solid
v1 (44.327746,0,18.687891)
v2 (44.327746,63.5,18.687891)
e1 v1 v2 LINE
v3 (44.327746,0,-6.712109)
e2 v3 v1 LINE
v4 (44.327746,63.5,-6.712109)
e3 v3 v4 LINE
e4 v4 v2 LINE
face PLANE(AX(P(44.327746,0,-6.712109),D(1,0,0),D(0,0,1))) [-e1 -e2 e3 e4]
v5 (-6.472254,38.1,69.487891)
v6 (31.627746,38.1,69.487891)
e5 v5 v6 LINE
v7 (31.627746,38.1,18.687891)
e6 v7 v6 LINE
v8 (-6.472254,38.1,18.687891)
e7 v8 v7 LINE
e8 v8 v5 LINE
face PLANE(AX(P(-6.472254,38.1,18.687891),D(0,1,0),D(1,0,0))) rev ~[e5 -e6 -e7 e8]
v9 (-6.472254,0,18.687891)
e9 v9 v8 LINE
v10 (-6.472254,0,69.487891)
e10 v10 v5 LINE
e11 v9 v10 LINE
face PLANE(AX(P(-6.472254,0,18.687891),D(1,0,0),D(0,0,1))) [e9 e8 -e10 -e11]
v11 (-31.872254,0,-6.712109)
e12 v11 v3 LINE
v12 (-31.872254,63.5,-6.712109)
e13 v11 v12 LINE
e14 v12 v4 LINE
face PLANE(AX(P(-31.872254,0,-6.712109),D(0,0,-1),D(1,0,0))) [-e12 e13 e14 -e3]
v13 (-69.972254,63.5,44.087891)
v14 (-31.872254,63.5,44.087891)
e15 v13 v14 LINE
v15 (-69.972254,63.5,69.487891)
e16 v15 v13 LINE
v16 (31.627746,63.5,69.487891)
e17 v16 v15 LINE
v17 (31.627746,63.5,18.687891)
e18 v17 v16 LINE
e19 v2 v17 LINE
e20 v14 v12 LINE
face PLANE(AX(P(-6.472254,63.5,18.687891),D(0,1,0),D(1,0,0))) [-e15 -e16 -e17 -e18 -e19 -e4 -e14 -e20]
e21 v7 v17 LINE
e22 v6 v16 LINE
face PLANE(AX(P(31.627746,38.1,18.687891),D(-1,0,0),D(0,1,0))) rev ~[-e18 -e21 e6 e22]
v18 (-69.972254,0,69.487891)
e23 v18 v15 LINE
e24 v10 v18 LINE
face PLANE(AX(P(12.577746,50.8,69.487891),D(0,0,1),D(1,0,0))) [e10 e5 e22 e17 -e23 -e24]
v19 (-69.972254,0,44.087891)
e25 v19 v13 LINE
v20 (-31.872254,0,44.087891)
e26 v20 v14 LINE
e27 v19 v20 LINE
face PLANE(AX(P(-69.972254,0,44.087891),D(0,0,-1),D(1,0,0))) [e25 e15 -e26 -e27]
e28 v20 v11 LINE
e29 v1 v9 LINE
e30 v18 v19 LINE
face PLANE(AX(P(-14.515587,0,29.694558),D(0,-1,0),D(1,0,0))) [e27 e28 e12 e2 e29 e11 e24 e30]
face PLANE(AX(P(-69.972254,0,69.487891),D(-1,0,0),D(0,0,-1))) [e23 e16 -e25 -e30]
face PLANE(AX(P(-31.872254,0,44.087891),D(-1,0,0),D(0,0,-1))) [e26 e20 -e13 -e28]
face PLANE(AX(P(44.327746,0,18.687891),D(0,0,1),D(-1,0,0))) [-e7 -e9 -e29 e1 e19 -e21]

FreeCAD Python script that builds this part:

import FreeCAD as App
import Part
import Sketcher
from FreeCAD import Vector
Q = App.Units.Quantity

doc = App.newDocument("Part")
body = doc.addObject("PartDesign::Body", "Body")

sketch1 = body.newObject("Sketcher::SketchObject", "Sketch")
sketch1.AttachmentSupport = (doc.getObject("XZ_Plane"), [""])
sketch1.MapMode = "FlatFace"
sketch1.addGeometry(Part.LineSegment(Vector(-32, 44, 0), Vector(-32, -7, 0)), False)
sketch1.addGeometry(Part.LineSegment(Vector(-32, -7, 0), Vector(44, -7, 0)), False)
sketch1.addGeometry(Part.LineSegment(Vector(44, -7, 0), Vector(44, 19, 0)), False)
sketch1.addGeometry(Part.LineSegment(Vector(44, 19, 0), Vector(-6, 19, 0)), False)
sketch1.addGeometry(Part.LineSegment(Vector(-6, 19, 0), Vector(-6, 69, 0)), False)
sketch1.addGeometry(Part.LineSegment(Vector(-6, 69, 0), Vector(-70, 69, 0)), False)
sketch1.addGeometry(Part.LineSegment(Vector(-70, 69, 0), Vector(-70, 44, 0)), False)
sketch1.addGeometry(Part.LineSegment(Vector(-70, 44, 0), Vector(-32, 44, 0)), False)
sketch1.addConstraint(Sketcher.Constraint("Coincident", 0, 2, 1, 1))
sketch1.addConstraint(Sketcher.Constraint("Coincident", 1, 2, 2, 1))
sketch1.addConstraint(Sketcher.Constraint("Coincident", 2, 2, 3, 1))
sketch1.addConstraint(Sketcher.Constraint("Coincident", 3, 2, 4, 1))
sketch1.addConstraint(Sketcher.Constraint("Coincident", 4, 2, 5, 1))
sketch1.addConstraint(Sketcher.Constraint("Coincident", 5, 2, 6, 1))
sketch1.addConstraint(Sketcher.Constraint("Coincident", 6, 2, 7, 1))
sketch1.addConstraint(Sketcher.Constraint("Coincident", 7, 2, 0, 1))
sketch1.addConstraint(Sketcher.Constraint("Vertical", 0))
sketch1.addConstraint(Sketcher.Constraint("Horizontal", 1))
sketch1.addConstraint(Sketcher.Constraint("Vertical", 2))
sketch1.addConstraint(Sketcher.Constraint("Horizontal", 3))
sketch1.addConstraint(Sketcher.Constraint("Vertical", 4))
sketch1.addConstraint(Sketcher.Constraint("Horizontal", 5))
sketch1.addConstraint(Sketcher.Constraint("Vertical", 6))
sketch1.addConstraint(Sketcher.Constraint("Horizontal", 7))
sketch1.addConstraint(Sketcher.Constraint("Equal", 3, 0))
sketch1.addConstraint(Sketcher.Constraint("Equal", 0, 4))
sketch1.addConstraint(Sketcher.Constraint("DistanceX", 1, 1, 1, 2, Q("3 in")))
sketch1.addConstraint(Sketcher.Constraint("DistanceX", 3, 2, 3, 1, Q("2 in")))
sketch1.addConstraint(Sketcher.Constraint("DistanceY", 2, 1, 2, 2, Q("1 in")))
sketch1.addConstraint(Sketcher.Constraint("DistanceX", 5, 2, 5, 1, Q("2.5 in")))
sketch1.addConstraint(Sketcher.Constraint("DistanceY", 0, 2, -1, 1, 6.712109))
sketch1.addConstraint(Sketcher.Constraint("DistanceX", 0, 2, -1, 1, 31.872254))
pad1 = body.newObject("PartDesign::Pad", "Pad")
pad1.Profile = sketch1
pad1.Length = Q("2.5 in")
pad1.Reversed = True

sketch2 = body.newObject("Sketcher::SketchObject", "Sketch001")
sketch2.AttachmentSupport = (doc.getObject("XY_Plane"), [""])
sketch2.MapMode = "FlatFace"
sketch2.AttachmentOffset = App.Placement(Vector(0, 0, 18.687891), App.Rotation())
sketch2.addGeometry(Part.LineSegment(Vector(-6, 64, 0), Vector(-6, 38, 0)), False)
sketch2.addGeometry(Part.LineSegment(Vector(-6, 38, 0), Vector(32, 38, 0)), False)
sketch2.addGeometry(Part.LineSegment(Vector(32, 38, 0), Vector(32, 64, 0)), False)
sketch2.addGeometry(Part.LineSegment(Vector(32, 64, 0), Vector(-6, 64, 0)), False)
sketch2.addConstraint(Sketcher.Constraint("Coincident", 0, 2, 1, 1))
sketch2.addConstraint(Sketcher.Constraint("Coincident", 1, 2, 2, 1))
sketch2.addConstraint(Sketcher.Constraint("Coincident", 2, 2, 3, 1))
sketch2.addConstraint(Sketcher.Constraint("Coincident", 3, 2, 0, 1))
sketch2.addConstraint(Sketcher.Constraint("Vertical", 0))
sketch2.addConstraint(Sketcher.Constraint("Horizontal", 1))
sketch2.addConstraint(Sketcher.Constraint("Vertical", 2))
sketch2.addConstraint(Sketcher.Constraint("Horizontal", 3))
sketch2.addConstraint(Sketcher.Constraint("DistanceY", 0, 2, 0, 1, Q("1 in")))
sketch2.addConstraint(Sketcher.Constraint("DistanceX", 1, 1, 1, 2, Q("1.5 in")))
sketch2.addConstraint(Sketcher.Constraint("DistanceY", -1, 1, 0, 2, Q("1.5 in")))
sketch2.addConstraint(Sketcher.Constraint("DistanceX", 0, 2, -1, 1, 6.472254))
pad2 = body.newObject("PartDesign::Pad", "Pad001")
pad2.Profile = sketch2
pad2.Length = Q("2 in")

doc.recompute()
